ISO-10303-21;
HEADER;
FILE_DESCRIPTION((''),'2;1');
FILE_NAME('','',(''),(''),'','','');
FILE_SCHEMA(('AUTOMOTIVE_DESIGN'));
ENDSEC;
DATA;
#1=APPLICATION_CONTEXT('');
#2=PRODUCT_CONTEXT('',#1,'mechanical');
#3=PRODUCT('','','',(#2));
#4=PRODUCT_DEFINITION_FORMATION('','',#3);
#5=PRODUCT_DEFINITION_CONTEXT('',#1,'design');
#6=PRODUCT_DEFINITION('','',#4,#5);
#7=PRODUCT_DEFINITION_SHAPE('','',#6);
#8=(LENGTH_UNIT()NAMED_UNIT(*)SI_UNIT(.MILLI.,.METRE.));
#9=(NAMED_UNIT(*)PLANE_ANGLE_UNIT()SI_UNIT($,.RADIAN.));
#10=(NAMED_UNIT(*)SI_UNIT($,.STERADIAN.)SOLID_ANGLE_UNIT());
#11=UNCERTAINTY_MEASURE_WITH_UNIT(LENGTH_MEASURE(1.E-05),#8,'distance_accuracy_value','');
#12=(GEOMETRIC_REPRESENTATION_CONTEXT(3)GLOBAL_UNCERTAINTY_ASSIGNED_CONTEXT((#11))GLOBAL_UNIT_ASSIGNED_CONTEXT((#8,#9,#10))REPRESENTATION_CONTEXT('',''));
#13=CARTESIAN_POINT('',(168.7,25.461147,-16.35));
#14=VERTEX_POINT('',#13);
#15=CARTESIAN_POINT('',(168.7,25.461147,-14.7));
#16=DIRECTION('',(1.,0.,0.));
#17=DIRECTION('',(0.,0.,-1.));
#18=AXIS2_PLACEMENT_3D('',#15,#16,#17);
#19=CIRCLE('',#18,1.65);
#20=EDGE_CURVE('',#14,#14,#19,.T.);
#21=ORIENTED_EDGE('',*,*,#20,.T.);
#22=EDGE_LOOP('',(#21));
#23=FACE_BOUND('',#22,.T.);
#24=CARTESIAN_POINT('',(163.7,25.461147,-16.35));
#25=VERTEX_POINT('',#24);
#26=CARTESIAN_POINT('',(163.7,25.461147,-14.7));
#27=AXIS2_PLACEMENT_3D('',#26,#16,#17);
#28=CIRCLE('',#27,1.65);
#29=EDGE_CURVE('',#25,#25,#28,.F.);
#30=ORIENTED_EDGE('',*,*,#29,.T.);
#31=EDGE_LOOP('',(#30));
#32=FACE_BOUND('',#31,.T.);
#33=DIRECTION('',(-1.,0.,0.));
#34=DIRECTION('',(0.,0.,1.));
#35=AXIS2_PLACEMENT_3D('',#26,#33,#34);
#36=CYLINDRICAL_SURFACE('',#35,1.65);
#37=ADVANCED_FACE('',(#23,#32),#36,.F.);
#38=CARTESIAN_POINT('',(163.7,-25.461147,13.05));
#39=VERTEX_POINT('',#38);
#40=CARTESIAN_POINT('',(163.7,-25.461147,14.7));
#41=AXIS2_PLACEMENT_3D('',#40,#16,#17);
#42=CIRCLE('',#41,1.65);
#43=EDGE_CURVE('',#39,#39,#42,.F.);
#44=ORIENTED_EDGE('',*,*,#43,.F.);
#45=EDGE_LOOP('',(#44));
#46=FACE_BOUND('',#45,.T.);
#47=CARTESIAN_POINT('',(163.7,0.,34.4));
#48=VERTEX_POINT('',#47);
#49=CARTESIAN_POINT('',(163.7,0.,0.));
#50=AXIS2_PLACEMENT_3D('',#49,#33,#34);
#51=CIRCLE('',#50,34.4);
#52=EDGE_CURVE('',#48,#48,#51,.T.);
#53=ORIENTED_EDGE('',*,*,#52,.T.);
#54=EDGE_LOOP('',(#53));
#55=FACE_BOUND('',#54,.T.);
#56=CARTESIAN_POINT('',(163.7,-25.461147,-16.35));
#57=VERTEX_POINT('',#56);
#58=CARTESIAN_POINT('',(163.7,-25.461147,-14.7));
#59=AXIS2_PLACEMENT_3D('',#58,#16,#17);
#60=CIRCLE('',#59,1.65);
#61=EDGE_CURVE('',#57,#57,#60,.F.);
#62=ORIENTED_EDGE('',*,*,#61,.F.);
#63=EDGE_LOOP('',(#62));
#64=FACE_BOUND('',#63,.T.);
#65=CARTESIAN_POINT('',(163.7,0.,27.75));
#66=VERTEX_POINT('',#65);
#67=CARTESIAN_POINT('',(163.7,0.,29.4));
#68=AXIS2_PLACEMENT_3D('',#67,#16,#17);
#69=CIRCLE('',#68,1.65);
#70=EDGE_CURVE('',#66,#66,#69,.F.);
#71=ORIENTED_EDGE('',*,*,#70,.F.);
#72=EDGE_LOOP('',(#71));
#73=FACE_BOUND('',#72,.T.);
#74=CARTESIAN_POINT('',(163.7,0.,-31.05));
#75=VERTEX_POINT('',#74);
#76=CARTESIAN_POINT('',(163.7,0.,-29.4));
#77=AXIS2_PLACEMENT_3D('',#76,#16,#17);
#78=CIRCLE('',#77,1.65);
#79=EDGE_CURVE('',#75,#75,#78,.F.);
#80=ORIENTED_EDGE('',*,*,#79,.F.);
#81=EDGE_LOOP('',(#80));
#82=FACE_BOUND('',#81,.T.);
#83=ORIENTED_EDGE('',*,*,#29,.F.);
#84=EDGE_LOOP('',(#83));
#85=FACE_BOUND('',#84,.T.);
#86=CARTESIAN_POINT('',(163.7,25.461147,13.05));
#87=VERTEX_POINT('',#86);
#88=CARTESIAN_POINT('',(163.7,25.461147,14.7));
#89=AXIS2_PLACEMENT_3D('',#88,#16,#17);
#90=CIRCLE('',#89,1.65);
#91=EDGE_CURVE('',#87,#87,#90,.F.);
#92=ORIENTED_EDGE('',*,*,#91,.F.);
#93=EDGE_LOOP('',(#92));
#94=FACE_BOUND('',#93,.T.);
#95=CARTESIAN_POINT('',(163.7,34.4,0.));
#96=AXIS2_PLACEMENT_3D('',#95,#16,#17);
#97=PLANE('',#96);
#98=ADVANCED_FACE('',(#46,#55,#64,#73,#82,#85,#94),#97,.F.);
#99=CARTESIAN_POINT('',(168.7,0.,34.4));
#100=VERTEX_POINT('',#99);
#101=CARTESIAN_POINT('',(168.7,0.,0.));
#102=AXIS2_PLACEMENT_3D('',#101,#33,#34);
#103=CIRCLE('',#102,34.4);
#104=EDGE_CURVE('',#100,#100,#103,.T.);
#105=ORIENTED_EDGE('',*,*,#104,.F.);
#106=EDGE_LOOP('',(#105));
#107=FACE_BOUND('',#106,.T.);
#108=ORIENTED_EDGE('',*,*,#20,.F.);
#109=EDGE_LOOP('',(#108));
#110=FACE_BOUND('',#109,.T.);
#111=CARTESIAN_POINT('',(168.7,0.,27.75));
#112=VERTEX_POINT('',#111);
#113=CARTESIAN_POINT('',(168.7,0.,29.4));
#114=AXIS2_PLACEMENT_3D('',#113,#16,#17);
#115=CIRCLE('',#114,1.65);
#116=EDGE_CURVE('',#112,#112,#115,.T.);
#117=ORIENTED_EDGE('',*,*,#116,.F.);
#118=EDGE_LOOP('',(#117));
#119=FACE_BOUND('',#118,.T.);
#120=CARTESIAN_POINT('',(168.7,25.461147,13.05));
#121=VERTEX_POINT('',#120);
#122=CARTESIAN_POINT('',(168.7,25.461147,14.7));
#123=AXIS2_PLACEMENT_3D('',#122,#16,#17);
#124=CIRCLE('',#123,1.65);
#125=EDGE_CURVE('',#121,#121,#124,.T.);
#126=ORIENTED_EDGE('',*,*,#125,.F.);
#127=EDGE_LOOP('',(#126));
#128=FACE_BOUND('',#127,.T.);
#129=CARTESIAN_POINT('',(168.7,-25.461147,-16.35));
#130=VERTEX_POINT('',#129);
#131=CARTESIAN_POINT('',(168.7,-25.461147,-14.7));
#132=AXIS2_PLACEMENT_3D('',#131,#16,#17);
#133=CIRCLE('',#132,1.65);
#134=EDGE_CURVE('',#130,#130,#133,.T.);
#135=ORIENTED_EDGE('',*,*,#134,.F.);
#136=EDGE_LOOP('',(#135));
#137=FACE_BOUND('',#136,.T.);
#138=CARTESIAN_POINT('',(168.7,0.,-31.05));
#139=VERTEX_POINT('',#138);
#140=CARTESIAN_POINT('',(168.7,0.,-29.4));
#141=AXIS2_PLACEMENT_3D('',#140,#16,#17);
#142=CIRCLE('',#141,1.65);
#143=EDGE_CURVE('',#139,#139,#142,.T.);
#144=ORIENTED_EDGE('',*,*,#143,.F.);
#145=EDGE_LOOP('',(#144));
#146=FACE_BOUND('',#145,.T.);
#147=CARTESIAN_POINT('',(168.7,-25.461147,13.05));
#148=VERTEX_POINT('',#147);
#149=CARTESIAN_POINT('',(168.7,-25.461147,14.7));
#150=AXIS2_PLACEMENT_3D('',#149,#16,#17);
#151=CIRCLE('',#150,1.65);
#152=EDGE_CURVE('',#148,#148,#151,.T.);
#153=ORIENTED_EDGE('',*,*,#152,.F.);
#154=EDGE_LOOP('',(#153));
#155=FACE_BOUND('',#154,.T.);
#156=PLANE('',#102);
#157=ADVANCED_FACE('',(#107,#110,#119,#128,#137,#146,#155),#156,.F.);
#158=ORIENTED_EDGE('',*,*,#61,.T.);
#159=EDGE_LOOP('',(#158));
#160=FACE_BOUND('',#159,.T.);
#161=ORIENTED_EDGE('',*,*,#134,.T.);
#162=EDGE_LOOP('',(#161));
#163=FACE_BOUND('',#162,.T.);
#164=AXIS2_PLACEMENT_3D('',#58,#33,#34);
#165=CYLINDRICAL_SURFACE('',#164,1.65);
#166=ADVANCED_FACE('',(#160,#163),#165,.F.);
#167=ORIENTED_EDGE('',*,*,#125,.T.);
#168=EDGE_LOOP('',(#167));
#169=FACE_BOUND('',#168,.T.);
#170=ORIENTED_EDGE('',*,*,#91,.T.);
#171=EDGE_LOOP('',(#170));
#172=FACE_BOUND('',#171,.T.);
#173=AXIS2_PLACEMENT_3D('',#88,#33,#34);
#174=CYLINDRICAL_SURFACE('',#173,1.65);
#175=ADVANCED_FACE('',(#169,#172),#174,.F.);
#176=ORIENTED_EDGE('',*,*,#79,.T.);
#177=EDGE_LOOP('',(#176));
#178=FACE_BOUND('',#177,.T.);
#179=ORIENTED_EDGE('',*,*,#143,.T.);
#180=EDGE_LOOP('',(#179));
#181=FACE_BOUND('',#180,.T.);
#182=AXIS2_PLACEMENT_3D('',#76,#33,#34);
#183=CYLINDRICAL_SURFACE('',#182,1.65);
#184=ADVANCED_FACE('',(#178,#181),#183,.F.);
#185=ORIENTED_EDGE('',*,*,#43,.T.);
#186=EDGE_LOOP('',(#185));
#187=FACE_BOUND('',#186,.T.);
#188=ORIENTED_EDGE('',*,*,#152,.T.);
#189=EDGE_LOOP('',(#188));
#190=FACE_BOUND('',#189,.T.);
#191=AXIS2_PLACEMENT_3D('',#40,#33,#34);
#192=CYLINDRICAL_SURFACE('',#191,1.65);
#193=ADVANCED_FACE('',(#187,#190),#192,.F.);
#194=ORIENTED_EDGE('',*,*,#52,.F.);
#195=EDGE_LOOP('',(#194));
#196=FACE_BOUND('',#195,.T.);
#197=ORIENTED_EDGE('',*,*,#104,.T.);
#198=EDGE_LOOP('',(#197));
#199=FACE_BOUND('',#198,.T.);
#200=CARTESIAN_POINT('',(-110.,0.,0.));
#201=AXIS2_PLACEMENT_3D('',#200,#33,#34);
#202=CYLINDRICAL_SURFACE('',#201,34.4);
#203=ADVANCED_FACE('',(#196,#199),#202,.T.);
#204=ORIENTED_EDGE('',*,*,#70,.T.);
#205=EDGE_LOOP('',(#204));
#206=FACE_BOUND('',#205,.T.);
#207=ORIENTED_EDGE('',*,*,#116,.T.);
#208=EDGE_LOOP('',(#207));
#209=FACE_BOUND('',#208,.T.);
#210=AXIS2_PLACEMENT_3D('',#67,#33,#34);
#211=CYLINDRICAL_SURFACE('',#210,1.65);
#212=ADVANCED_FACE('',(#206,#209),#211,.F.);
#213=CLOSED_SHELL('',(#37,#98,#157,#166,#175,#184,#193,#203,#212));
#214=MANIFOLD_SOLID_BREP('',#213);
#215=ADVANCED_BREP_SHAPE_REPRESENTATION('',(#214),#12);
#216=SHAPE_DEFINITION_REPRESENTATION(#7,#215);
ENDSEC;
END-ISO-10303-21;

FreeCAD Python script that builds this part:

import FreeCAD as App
import Part
import Sketcher

V = App.Vector
Q = App.Units.Quantity

doc = App.newDocument("Part")
body = doc.addObject("PartDesign::Body", "Body")

# Sketch on XY plane
sketch1 = doc.addObject("Sketcher::SketchObject", "Sketch")
body.addObject(sketch1)
sketch1.AttachmentSupport = (doc.XY_Plane, [""])
sketch1.MapMode = "FlatFace"
sketch1.addGeometry(Part.LineSegment(V(164, 34, 0), V(164, 0, 0)), False)
sketch1.addGeometry(Part.LineSegment(V(164, 0, 0), V(169, 0, 0)), False)
sketch1.addGeometry(Part.LineSegment(V(169, 0, 0), V(169, 34, 0)), False)
sketch1.addGeometry(Part.LineSegment(V(169, 34, 0), V(164, 34, 0)), False)
sketch1.addConstraint(Sketcher.Constraint("Coincident", 0, 2, 1, 1))
sketch1.addConstraint(Sketcher.Constraint("Coincident", 1, 2, 2, 1))
sketch1.addConstraint(Sketcher.Constraint("Coincident", 2, 2, 3, 1))
sketch1.addConstraint(Sketcher.Constraint("Coincident", 3, 2, 0, 1))
sketch1.addConstraint(Sketcher.Constraint("Vertical", 0))
sketch1.addConstraint(Sketcher.Constraint("Horizontal", 1))
sketch1.addConstraint(Sketcher.Constraint("Vertical", 2))
sketch1.addConstraint(Sketcher.Constraint("Horizontal", 3))
sketch1.addConstraint(Sketcher.Constraint("PointOnObject", 0, 2, -1))
sketch1.addConstraint(Sketcher.Constraint("DistanceX", 1, 1, 1, 2, Q("5 mm")))
sketch1.addConstraint(Sketcher.Constraint("DistanceY", 0, 2, 0, 1, Q("34.4 mm")))
sketch1.addConstraint(Sketcher.Constraint("DistanceX", -1, 1, 0, 2, Q("163.7 mm")))
revolution = doc.addObject("PartDesign::Revolution", "Revolution")
body.addObject(revolution)
revolution.Profile = sketch1
revolution.ReferenceAxis = (sketch1, ["H_Axis"])
revolution.Angle = 360

# Sketch on YZ plane
sketch2 = doc.addObject("Sketcher::SketchObject", "Sketch001")
body.addObject(sketch2)
sketch2.AttachmentSupport = (doc.YZ_Plane, [""])
sketch2.MapMode = "FlatFace"
sketch2.addGeometry(Part.Circle(V(0, 29.4, 0), V(0, 0, 1), 1.6), False)
sketch2.addGeometry(Part.Circle(V(-25.5, -14.7, 0), V(0, 0, 1), 1.6), False)
sketch2.addGeometry(Part.Circle(V(25.5, -14.7, 0), V(0, 0, 1), 1.6), False)
sketch2.addGeometry(Part.Circle(V(0, -29.4, 0), V(0, 0, 1), 1.6), False)
sketch2.addGeometry(Part.Circle(V(25.5, 14.7, 0), V(0, 0, 1), 1.6), False)
sketch2.addGeometry(Part.Circle(V(-25.5, 14.7, 0), V(0, 0, 1), 1.6), False)
sketch2.addConstraint(Sketcher.Constraint("Equal", 0, 1))
sketch2.addConstraint(Sketcher.Constraint("Equal", 1, 2))
sketch2.addConstraint(Sketcher.Constraint("Equal", 2, 3))
sketch2.addConstraint(Sketcher.Constraint("Equal", 3, 4))
sketch2.addConstraint(Sketcher.Constraint("Equal", 4, 5))
sketch2.addConstraint(Sketcher.Constraint("Symmetric", 0, 3, 3, 3, -1, 1))
sketch2.addConstraint(Sketcher.Constraint("Symmetric", 1, 3, 4, 3, -1, 1))
sketch2.addConstraint(Sketcher.Constraint("Symmetric", 2, 3, 5, 3, -1, 1))
sketch2.addConstraint(Sketcher.Constraint("Symmetric", 1, 3, 2, 3, -2))
sketch2.addConstraint(Sketcher.Constraint("PointOnObject", 0, 3, -2))
sketch2.addConstraint(Sketcher.Constraint("Diameter", 0, Q("3.3 mm")))
sketch2.addConstraint(Sketcher.Constraint("DistanceY", -1, 1, 0, 3, Q("29.4 mm")))
sketch2.addConstraint(Sketcher.Constraint("DistanceY", 1, 3, -1, 1, Q("14.7 mm")))
sketch2.addConstraint(Sketcher.Constraint("DistanceX", 1, 3, -1, 1, Q("25.461147 mm")))
pocket1 = doc.addObject("PartDesign::Pocket", "Pocket")
body.addObject(pocket1)
pocket1.Profile = sketch2
pocket1.Type = "ThroughAll"
pocket1.Midplane = True

doc.recompute()
